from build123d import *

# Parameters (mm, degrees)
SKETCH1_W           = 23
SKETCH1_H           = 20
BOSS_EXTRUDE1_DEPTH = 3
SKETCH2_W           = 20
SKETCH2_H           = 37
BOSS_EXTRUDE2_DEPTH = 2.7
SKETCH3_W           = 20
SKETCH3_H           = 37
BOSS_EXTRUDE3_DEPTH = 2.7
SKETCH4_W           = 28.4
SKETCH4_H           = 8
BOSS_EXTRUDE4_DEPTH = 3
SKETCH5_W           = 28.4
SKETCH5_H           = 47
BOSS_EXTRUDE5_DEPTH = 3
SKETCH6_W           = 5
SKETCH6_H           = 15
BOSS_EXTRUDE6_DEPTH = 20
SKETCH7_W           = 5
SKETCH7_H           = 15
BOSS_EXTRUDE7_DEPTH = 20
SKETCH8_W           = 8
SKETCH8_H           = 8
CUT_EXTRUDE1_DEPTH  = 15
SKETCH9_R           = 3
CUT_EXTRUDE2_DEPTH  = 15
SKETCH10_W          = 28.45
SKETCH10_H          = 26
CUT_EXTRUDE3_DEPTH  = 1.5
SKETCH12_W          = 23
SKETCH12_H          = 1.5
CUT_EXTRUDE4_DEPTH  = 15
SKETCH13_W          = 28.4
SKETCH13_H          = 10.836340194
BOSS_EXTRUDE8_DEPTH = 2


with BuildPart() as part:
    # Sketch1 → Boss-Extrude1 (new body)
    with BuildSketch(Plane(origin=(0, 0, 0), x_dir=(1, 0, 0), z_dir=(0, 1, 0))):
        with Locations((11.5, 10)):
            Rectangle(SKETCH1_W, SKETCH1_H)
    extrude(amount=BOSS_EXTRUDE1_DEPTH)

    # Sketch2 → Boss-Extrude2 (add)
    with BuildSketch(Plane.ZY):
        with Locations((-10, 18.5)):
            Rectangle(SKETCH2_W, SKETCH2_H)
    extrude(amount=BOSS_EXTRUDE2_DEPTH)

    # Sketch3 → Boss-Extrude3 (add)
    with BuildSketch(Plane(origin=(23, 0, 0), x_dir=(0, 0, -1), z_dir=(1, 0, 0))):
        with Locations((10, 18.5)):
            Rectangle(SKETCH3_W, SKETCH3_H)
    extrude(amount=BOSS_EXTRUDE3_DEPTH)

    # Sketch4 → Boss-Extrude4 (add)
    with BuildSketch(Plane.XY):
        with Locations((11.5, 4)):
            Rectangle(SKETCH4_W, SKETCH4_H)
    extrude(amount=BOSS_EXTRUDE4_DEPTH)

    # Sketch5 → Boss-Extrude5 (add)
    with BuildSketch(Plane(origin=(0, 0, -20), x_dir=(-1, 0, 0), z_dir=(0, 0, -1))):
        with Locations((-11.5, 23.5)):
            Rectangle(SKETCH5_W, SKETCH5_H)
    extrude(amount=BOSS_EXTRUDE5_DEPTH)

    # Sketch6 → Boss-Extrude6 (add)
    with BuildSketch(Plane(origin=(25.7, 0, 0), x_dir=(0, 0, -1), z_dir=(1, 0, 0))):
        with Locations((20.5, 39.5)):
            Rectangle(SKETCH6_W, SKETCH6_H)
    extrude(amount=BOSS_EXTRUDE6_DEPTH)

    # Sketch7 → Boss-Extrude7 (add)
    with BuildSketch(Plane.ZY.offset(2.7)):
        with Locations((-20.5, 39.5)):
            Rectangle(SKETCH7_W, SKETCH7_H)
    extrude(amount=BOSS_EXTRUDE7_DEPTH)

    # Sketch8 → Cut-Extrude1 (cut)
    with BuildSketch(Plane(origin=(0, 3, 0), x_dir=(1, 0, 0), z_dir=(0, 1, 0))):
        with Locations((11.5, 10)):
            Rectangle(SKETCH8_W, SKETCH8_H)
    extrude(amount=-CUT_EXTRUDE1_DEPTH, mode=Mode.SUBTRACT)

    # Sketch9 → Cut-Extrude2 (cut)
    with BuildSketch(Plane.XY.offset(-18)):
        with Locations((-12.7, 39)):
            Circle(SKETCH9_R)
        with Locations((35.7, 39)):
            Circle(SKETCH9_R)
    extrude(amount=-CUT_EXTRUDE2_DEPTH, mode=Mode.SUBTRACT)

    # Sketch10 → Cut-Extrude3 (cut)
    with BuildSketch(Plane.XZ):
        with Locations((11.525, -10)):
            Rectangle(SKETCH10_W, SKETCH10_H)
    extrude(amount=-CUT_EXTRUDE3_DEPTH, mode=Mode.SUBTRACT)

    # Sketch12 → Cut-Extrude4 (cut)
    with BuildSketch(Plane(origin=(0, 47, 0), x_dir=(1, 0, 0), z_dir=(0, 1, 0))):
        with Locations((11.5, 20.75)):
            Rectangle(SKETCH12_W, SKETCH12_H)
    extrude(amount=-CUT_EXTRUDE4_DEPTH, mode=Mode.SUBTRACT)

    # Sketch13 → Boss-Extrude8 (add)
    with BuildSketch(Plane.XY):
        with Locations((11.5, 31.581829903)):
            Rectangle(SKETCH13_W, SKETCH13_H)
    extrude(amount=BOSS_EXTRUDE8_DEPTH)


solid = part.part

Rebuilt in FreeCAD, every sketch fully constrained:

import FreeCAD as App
import Part
import Sketcher
Q = App.Units.Quantity


def add_polygon(sketch, points):
    """Adds a closed chain of lines whose ends are joined by coincident constraints."""
    first, n = sketch.GeometryCount, len(points)
    for a, b in zip(points, points[1:] + points[:1]):
        sketch.addGeometry(Part.LineSegment(App.Vector(*a, 0), App.Vector(*b, 0)), False)
    for i in range(n):
        sketch.addConstraint(Sketcher.Constraint("Coincident", first + i, 2, first + (i + 1) % n, 1))

doc = App.newDocument("Part")
body = doc.addObject("PartDesign::Body", "Body")

sketch1 = body.newObject("Sketcher::SketchObject", "Sketch")
sketch1.AttachmentSupport = (doc.getObject("XZ_Plane"), [""])
sketch1.MapMode = "FlatFace"
add_polygon(sketch1, [(0, -20), (0, 0), (23, 0), (23, -20)])
sketch1.addConstraint([
    Sketcher.Constraint("Vertical", 0),
    Sketcher.Constraint("Horizontal", 1),
    Sketcher.Constraint("Vertical", 2),
    Sketcher.Constraint("Horizontal", 3),
    Sketcher.Constraint("Coincident", 0, 2, -1, 1),
    Sketcher.Constraint("DistanceX", 1, 1, 1, 2, Q("23 mm")),
    Sketcher.Constraint("DistanceY", 0, 1, 0, 2, Q("20 mm")),
])
pad1 = body.newObject("PartDesign::Pad", "Pad")
pad1.Profile = sketch1
pad1.Length = 3
pad1.Reversed = True

sketch2 = body.newObject("Sketcher::SketchObject", "Sketch001")
sketch2.AttachmentSupport = (doc.getObject("YZ_Plane"), [""])
sketch2.MapMode = "FlatFace"
add_polygon(sketch2, [(37, -20), (0, -20), (0, 0), (37, 0)])
sketch2.addConstraint([
    Sketcher.Constraint("Horizontal", 0),
    Sketcher.Constraint("Vertical", 1),
    Sketcher.Constraint("Horizontal", 2),
    Sketcher.Constraint("Vertical", 3),
    Sketcher.Constraint("Coincident", 1, 2, -1, 1),
    Sketcher.Constraint("DistanceX", 0, 2, 0, 1, Q("37 mm")),
    Sketcher.Constraint("DistanceY", 1, 1, 1, 2, Q("20 mm")),
])
pad2 = body.newObject("PartDesign::Pad", "Pad001")
pad2.Profile = sketch2
pad2.Length = 2.7
pad2.Reversed = True

sketch3 = body.newObject("Sketcher::SketchObject", "Sketch002")
sketch3.AttachmentSupport = (doc.getObject("YZ_Plane"), [""])
sketch3.MapMode = "FlatFace"
sketch3.AttachmentOffset = App.Placement(App.Vector(0, 0, 23), App.Rotation())
add_polygon(sketch3, [(37, 0), (0, 0), (0, -20), (37, -20)])
sketch3.addConstraint([
    Sketcher.Constraint("Horizontal", 0),
    Sketcher.Constraint("Vertical", 1),
    Sketcher.Constraint("Horizontal", 2),
    Sketcher.Constraint("Vertical", 3),
    Sketcher.Constraint("Coincident", 0, 2, -1, 1),
    Sketcher.Constraint("DistanceX", 0, 2, 0, 1, Q("37 mm")),
    Sketcher.Constraint("DistanceY", 1, 2, 1, 1, Q("20 mm")),
])
pad3 = body.newObject("PartDesign::Pad", "Pad002")
pad3.Profile = sketch3
pad3.Length = 2.7

sketch4 = body.newObject("Sketcher::SketchObject", "Sketch003")
sketch4.AttachmentSupport = (doc.getObject("XY_Plane"), [""])
sketch4.MapMode = "FlatFace"
add_polygon(sketch4, [(-2.7, 8), (-2.7, 0), (25.7, 0), (25.7, 8)])
sketch4.addConstraint([
    Sketcher.Constraint("Vertical", 0),
    Sketcher.Constraint("Horizontal", 1),
    Sketcher.Constraint("Vertical", 2),
    Sketcher.Constraint("Horizontal", 3),
    Sketcher.Constraint("PointOnObject", 0, 2, -1),
    Sketcher.Constraint("DistanceY", 0, 2, 0, 1, Q("8 mm")),
    Sketcher.Constraint("DistanceX", 1, 1, 1, 2, Q("28.4 mm")),
    Sketcher.Constraint("DistanceX", 0, 2, -1, 1, Q("2.7 mm")),
])
pad4 = body.newObject("PartDesign::Pad", "Pad003")
pad4.Profile = sketch4
pad4.Length = 3

sketch5 = body.newObject("Sketcher::SketchObject", "Sketch004")
sketch5.AttachmentSupport = (doc.getObject("XY_Plane"), [""])
sketch5.MapMode = "FlatFace"
sketch5.AttachmentOffset = App.Placement(App.Vector(0, 0, -20), App.Rotation())
add_polygon(sketch5, [(25.7, 47), (25.7, 0), (-2.7, 0), (-2.7, 47)])
sketch5.addConstraint([
    Sketcher.Constraint("Vertical", 0),
    Sketcher.Constraint("Horizontal", 1),
    Sketcher.Constraint("Vertical", 2),
    Sketcher.Constraint("Horizontal", 3),
    Sketcher.Constraint("PointOnObject", 0, 2, -1),
    Sketcher.Constraint("DistanceY", 0, 2, 0, 1, Q("47 mm")),
    Sketcher.Constraint("DistanceX", 1, 2, 1, 1, Q("28.4 mm")),
    Sketcher.Constraint("DistanceX", -1, 1, 0, 2, Q("25.7 mm")),
])
pad5 = body.newObject("PartDesign::Pad", "Pad004")
pad5.Profile = sketch5
pad5.Length = 3
pad5.Reversed = True

sketch6 = body.newObject("Sketcher::SketchObject", "Sketch005")
sketch6.AttachmentSupport = (doc.getObject("YZ_Plane"), [""])
sketch6.MapMode = "FlatFace"
sketch6.AttachmentOffset = App.Placement(App.Vector(0, 0, 25.7), App.Rotation())
add_polygon(sketch6, [(47, -18), (32, -18), (32, -23), (47, -23)])
sketch6.addConstraint([
    Sketcher.Constraint("Horizontal", 0),
    Sketcher.Constraint("Vertical", 1),
    Sketcher.Constraint("Horizontal", 2),
    Sketcher.Constraint("Vertical", 3),
    Sketcher.Constraint("DistanceX", 0, 2, 0, 1, Q("15 mm")),
    Sketcher.Constraint("DistanceY", 1, 2, 1, 1, Q("5 mm")),
    Sketcher.Constraint("DistanceX", -1, 1, 0, 2, Q("32 mm")),
    Sketcher.Constraint("DistanceY", 0, 2, -1, 1, Q("18 mm")),
])
pad6 = body.newObject("PartDesign::Pad", "Pad005")
pad6.Profile = sketch6
pad6.Length = 20

sketch7 = body.newObject("Sketcher::SketchObject", "Sketch006")
sketch7.AttachmentSupport = (doc.getObject("YZ_Plane"), [""])
sketch7.MapMode = "FlatFace"
sketch7.AttachmentOffset = App.Placement(App.Vector(0, 0, -2.7), App.Rotation())
add_polygon(sketch7, [(47, -23), (32, -23), (32, -18), (47, -18)])
sketch7.addConstraint([
    Sketcher.Constraint("Horizontal", 0),
    Sketcher.Constraint("Vertical", 1),
    Sketcher.Constraint("Horizontal", 2),
    Sketcher.Constraint("Vertical", 3),
    Sketcher.Constraint("DistanceX", 0, 2, 0, 1, Q("15 mm")),
    Sketcher.Constraint("DistanceY", 1, 1, 1, 2, Q("5 mm")),
    Sketcher.Constraint("DistanceX", -1, 1, 0, 2, Q("32 mm")),
    Sketcher.Constraint("DistanceY", 0, 2, -1, 1, Q("23 mm")),
])
pad7 = body.newObject("PartDesign::Pad", "Pad006")
pad7.Profile = sketch7
pad7.Length = 20
pad7.Reversed = True

sketch8 = body.newObject("Sketcher::SketchObject", "Sketch007")
sketch8.AttachmentSupport = (doc.getObject("XZ_Plane"), [""])
sketch8.MapMode = "FlatFace"
sketch8.AttachmentOffset = App.Placement(App.Vector(0, 0, -3), App.Rotation())
add_polygon(sketch8, [(7.5, -14), (7.5, -6), (15.5, -6), (15.5, -14)])
sketch8.addConstraint([
    Sketcher.Constraint("Vertical", 0),
    Sketcher.Constraint("Horizontal", 1),
    Sketcher.Constraint("Vertical", 2),
    Sketcher.Constraint("Horizontal", 3),
    Sketcher.Constraint("Equal", 3, 0),
    Sketcher.Constraint("DistanceX", 1, 1, 1, 2, Q("8 mm")),
    Sketcher.Constraint("DistanceY", 0, 2, -1, 1, Q("6 mm")),
    Sketcher.Constraint("DistanceX", -1, 1, 0, 2, Q("7.5 mm")),
])
pocket1 = body.newObject("PartDesign::Pocket", "Pocket")
pocket1.Profile = sketch8
pocket1.Length = 15
pocket1.Reversed = True

sketch9 = body.newObject("Sketcher::SketchObject", "Sketch008")
sketch9.AttachmentSupport = (doc.getObject("XY_Plane"), [""])
sketch9.MapMode = "FlatFace"
sketch9.AttachmentOffset = App.Placement(App.Vector(0, 0, -18), App.Rotation())
sketch9.addGeometry([
    Part.Circle(App.Vector(-12.7, 39, 0), App.Vector(0, 0, 1), 3),
    Part.Circle(App.Vector(35.7, 39, 0), App.Vector(0, 0, 1), 3),
], False)
sketch9.addConstraint([
    Sketcher.Constraint("Equal", 0, 1),
    Sketcher.Constraint("Horizontal", 0, 3, 1, 3),
    Sketcher.Constraint("Diameter", 0, Q("6 mm")),
    Sketcher.Constraint("DistanceY", -1, 1, 0, 3, Q("39 mm")),
    Sketcher.Constraint("DistanceX", 0, 3, -1, 1, Q("12.7 mm")),
    Sketcher.Constraint("DistanceX", -1, 1, 1, 3, Q("35.7 mm")),
])
pocket2 = body.newObject("PartDesign::Pocket", "Pocket001")
pocket2.Profile = sketch9
pocket2.Length = 15

sketch10 = body.newObject("Sketcher::SketchObject", "Sketch009")
sketch10.AttachmentSupport = (doc.getObject("XZ_Plane"), [""])
sketch10.MapMode = "FlatFace"
add_polygon(sketch10, [(-2.7, 3), (-2.7, -23), (25.75, -23), (25.75, 3)])
sketch10.addConstraint([
    Sketcher.Constraint("Vertical", 0),
    Sketcher.Constraint("Horizontal", 1),
    Sketcher.Constraint("Vertical", 2),
    Sketcher.Constraint("Horizontal", 3),
    Sketcher.Constraint("DistanceY", 0, 2, 0, 1, Q("26 mm")),
    Sketcher.Constraint("DistanceY", 0, 2, -1, 1, Q("23 mm")),
    Sketcher.Constraint("DistanceX", 1, 1, 1, 2, Q("28.45 mm")),
    Sketcher.Constraint("DistanceX", 0, 2, -1, 1, Q("2.7 mm")),
])
pocket3 = body.newObject("PartDesign::Pocket", "Pocket002")
pocket3.Profile = sketch10
pocket3.Length = 1.5

sketch11 = body.newObject("Sketcher::SketchObject", "Sketch010")
sketch11.AttachmentSupport = (doc.getObject("XZ_Plane"), [""])
sketch11.MapMode = "FlatFace"
sketch11.AttachmentOffset = App.Placement(App.Vector(0, 0, -47), App.Rotation())
add_polygon(sketch11, [(0, -21.5), (0, -20), (23, -20), (23, -21.5)])
sketch11.addConstraint([
    Sketcher.Constraint("Vertical", 0),
    Sketcher.Constraint("Horizontal", 1),
    Sketcher.Constraint("Vertical", 2),
    Sketcher.Constraint("Horizontal", 3),
    Sketcher.Constraint("PointOnObject", 0, 2, -2),
    Sketcher.Constraint("DistanceX", 1, 1, 1, 2, Q("23 mm")),
    Sketcher.Constraint("DistanceY", 0, 1, 0, 2, Q("1.5 mm")),
    Sketcher.Constraint("DistanceY", 0, 2, -1, 1, Q("20 mm")),
])
pocket4 = body.newObject("PartDesign::Pocket", "Pocket003")
pocket4.Profile = sketch11
pocket4.Length = 15
pocket4.Reversed = True

sketch12 = body.newObject("Sketcher::SketchObject", "Sketch011")
sketch12.AttachmentSupport = (doc.getObject("XY_Plane"), [""])
sketch12.MapMode = "FlatFace"
add_polygon(sketch12, [(-2.7, 37), (-2.7, 26.16366), (25.7, 26.16366), (25.7, 37)])
sketch12.addConstraint([
    Sketcher.Constraint("Vertical", 0),
    Sketcher.Constraint("Horizontal", 1),
    Sketcher.Constraint("Vertical", 2),
    Sketcher.Constraint("Horizontal", 3),
    Sketcher.Constraint("DistanceX", 1, 1, 1, 2, Q("28.4 mm")),
    Sketcher.Constraint("DistanceY", -1, 1, 2, 2, Q("37 mm")),
    Sketcher.Constraint("DistanceX", 0, 2, -1, 1, Q("2.7 mm")),
    Sketcher.Constraint("DistanceY", 0, 2, 0, 1, Q("10.83634 mm")),
])
pad8 = body.newObject("PartDesign::Pad", "Pad007")
pad8.Profile = sketch12
pad8.Length = 2

doc.recompute()
